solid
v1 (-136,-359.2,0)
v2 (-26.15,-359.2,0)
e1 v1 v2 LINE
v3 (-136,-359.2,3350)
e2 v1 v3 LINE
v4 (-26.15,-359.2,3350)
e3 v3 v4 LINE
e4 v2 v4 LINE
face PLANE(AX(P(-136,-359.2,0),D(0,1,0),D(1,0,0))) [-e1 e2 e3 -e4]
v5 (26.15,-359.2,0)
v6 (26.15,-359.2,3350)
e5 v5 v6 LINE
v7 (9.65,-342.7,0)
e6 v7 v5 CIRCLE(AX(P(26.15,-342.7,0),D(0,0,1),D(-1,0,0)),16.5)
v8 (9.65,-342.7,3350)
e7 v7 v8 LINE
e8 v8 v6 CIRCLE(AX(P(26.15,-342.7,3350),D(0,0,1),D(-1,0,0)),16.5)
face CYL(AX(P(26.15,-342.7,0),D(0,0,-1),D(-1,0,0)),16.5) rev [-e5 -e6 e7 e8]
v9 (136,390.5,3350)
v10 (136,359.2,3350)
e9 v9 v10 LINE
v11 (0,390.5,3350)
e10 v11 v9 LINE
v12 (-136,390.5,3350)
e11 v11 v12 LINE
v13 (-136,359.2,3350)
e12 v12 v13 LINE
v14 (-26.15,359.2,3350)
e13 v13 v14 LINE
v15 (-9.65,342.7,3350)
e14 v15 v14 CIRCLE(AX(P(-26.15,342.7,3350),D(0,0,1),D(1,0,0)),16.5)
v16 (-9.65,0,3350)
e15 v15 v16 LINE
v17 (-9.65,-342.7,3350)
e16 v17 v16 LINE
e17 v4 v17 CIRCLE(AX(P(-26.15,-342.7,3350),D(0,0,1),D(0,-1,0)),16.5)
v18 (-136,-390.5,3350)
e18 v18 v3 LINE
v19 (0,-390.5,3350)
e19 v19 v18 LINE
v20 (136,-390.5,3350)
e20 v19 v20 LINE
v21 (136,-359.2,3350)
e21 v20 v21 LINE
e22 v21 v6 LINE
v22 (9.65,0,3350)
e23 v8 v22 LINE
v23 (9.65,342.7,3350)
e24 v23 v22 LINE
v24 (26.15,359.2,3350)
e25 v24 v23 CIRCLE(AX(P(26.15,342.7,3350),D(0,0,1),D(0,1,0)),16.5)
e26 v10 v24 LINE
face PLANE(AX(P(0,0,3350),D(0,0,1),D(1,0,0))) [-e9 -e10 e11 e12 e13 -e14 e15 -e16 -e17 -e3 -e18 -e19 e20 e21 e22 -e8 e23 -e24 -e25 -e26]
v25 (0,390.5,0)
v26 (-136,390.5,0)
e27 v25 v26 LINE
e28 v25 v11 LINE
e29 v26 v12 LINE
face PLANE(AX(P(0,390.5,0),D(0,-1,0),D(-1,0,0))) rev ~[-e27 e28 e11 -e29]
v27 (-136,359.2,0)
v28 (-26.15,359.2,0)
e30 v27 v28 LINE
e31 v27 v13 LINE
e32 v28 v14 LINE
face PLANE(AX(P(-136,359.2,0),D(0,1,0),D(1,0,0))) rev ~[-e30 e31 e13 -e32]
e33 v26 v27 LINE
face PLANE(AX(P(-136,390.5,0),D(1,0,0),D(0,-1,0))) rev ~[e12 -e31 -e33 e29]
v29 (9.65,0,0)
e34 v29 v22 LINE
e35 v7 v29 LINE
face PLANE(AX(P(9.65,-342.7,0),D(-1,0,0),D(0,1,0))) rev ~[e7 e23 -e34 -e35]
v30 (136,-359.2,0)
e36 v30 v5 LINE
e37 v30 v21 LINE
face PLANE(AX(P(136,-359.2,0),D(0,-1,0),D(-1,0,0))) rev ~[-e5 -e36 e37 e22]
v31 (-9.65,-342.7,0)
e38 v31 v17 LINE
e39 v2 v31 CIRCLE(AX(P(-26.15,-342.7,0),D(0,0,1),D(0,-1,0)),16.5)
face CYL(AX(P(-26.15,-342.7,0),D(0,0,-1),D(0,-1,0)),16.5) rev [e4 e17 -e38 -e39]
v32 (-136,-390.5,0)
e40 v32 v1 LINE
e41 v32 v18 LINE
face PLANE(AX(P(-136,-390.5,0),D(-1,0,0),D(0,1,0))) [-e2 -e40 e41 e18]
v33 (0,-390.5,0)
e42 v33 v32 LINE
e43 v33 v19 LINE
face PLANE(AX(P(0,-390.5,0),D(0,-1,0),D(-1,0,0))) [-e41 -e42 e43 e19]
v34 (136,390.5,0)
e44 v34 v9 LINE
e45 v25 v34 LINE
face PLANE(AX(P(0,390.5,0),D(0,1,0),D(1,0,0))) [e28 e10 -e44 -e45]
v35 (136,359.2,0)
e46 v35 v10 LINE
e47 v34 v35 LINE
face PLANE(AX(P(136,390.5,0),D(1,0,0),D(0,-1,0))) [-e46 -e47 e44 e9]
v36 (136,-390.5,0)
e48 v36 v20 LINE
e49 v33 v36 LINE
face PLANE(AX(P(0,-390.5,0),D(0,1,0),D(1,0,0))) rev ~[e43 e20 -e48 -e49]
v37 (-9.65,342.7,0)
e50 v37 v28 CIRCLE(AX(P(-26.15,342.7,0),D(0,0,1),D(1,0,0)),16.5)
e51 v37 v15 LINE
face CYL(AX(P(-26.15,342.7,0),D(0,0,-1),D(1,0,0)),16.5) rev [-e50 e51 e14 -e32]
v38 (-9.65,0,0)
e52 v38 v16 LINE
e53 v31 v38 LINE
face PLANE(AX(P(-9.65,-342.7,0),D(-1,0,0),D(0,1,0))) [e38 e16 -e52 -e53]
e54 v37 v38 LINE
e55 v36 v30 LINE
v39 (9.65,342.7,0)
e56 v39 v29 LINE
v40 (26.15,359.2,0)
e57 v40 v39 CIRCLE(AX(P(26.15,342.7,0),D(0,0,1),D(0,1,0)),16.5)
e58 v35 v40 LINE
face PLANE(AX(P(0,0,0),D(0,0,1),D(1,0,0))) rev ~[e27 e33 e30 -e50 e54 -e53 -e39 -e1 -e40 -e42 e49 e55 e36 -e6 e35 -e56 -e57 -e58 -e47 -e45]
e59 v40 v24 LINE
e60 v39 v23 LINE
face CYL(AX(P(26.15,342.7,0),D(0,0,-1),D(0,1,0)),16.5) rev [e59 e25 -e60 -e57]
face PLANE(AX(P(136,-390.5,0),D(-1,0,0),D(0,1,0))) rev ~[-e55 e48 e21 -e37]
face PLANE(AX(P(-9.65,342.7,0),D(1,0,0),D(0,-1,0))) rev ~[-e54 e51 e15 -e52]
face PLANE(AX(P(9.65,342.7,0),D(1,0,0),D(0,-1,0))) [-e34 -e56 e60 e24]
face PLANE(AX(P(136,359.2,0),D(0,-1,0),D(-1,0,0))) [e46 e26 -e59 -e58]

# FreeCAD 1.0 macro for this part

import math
import FreeCAD as App
import Part
import Sketcher

doc = App.newDocument("Part")
body = doc.addObject("PartDesign::Body", "Body")

# Sketch on XY plane
sketch1 = body.newObject("Sketcher::SketchObject", "Sketch")
sketch1.AttachmentSupport = (doc.getObject("XY_Plane"), [""])
sketch1.MapMode = "FlatFace"
sketch1.addGeometry([
    Part.LineSegment(App.Vector(-136, -359, 0), App.Vector(-136, -390, 0)),  # 0
    Part.LineSegment(App.Vector(-136, -390, 0), App.Vector(136, -390, 0)),  # 1
    Part.LineSegment(App.Vector(136, -390, 0), App.Vector(136, -359, 0)),  # 2
    Part.LineSegment(App.Vector(136, -359, 0), App.Vector(26, -359, 0)),  # 3
    Part.ArcOfCircle(Part.Circle(App.Vector(26, -343, 0), App.Vector(0, 0, 1), 16), math.radians(180), math.radians(270)),  # 4
    Part.LineSegment(App.Vector(10, -343, 0), App.Vector(10, 343, 0)),  # 5
    Part.ArcOfCircle(Part.Circle(App.Vector(26, 343, 0), App.Vector(0, 0, 1), 16), math.radians(90), math.radians(180)),  # 6
    Part.LineSegment(App.Vector(26, 359, 0), App.Vector(136, 359, 0)),  # 7
    Part.LineSegment(App.Vector(136, 359, 0), App.Vector(136, 390, 0)),  # 8
    Part.LineSegment(App.Vector(136, 390, 0), App.Vector(-136, 390, 0)),  # 9
    Part.LineSegment(App.Vector(-136, 390, 0), App.Vector(-136, 359, 0)),  # 10
    Part.LineSegment(App.Vector(-136, 359, 0), App.Vector(-26, 359, 0)),  # 11
    Part.ArcOfCircle(Part.Circle(App.Vector(-26, 343, 0), App.Vector(0, 0, 1), 16), math.radians(0), math.radians(90)),  # 12
    Part.LineSegment(App.Vector(-10, 343, 0), App.Vector(-10, -343, 0)),  # 13
    Part.ArcOfCircle(Part.Circle(App.Vector(-26, -343, 0), App.Vector(0, 0, 1), 16), math.radians(-90), math.radians(0)),  # 14
    Part.LineSegment(App.Vector(-26, -359, 0), App.Vector(-136, -359, 0)),  # 15
], False)
sketch1.addConstraint([
    Sketcher.Constraint("Coincident", 0, 2, 1, 1),
    Sketcher.Constraint("Coincident", 1, 2, 2, 1),
    Sketcher.Constraint("Coincident", 2, 2, 3, 1),
    Sketcher.Constraint("Tangent", 3, 2, 4, 2),
    Sketcher.Constraint("Tangent", 4, 1, 5, 1),
    Sketcher.Constraint("Tangent", 5, 2, 6, 2),
    Sketcher.Constraint("Tangent", 6, 1, 7, 1),
    Sketcher.Constraint("Coincident", 7, 2, 8, 1),
    Sketcher.Constraint("Coincident", 8, 2, 9, 1),
    Sketcher.Constraint("Coincident", 9, 2, 10, 1),
    Sketcher.Constraint("Coincident", 10, 2, 11, 1),
    Sketcher.Constraint("Tangent", 11, 2, 12, 2),
    Sketcher.Constraint("Tangent", 12, 1, 13, 1),
    Sketcher.Constraint("Tangent", 13, 2, 14, 2),
    Sketcher.Constraint("Tangent", 14, 1, 15, 1),
    Sketcher.Constraint("Coincident", 15, 2, 0, 1),
    Sketcher.Constraint("Vertical", 0),
    Sketcher.Constraint("Horizontal", 1),
    Sketcher.Constraint("Vertical", 2),
    Sketcher.Constraint("Horizontal", 3),
    Sketcher.Constraint("Vertical", 5),
    Sketcher.Constraint("Horizontal", 7),
    Sketcher.Constraint("Vertical", 8),
    Sketcher.Constraint("Horizontal", 9),
    Sketcher.Constraint("Vertical", 10),
    Sketcher.Constraint("Horizontal", 11),
    Sketcher.Constraint("Vertical", 13),
    Sketcher.Constraint("Horizontal", 15),
    Sketcher.Constraint("Equal", 4, 6),
    Sketcher.Constraint("Equal", 6, 12),
    Sketcher.Constraint("Equal", 12, 14),
    Sketcher.Constraint("Symmetric", 4, 3, 12, 3, -1, 1),
    Sketcher.Constraint("Symmetric", 0, 2, 8, 2, -1, 1),
    Sketcher.Constraint("Symmetric", 7, 2, 10, 2, -2),
    Sketcher.Constraint("Symmetric", 2, 2, 15, 2, -2),
    Sketcher.Constraint("Radius", 4, 16.5),
    Sketcher.Constraint("DistanceY", 0, 2, 0, 1, 31.3),
    Sketcher.Constraint("DistanceX", 0, 2, -1, 1, 136.0),
    Sketcher.Constraint("DistanceY", 0, 2, -1, 1, 390.5),
    Sketcher.Constraint("DistanceX", -1, 1, 4, 1, 9.65),
])
pad1 = body.newObject("PartDesign::Pad", "Pad")
pad1.Profile = sketch1
pad1.Length = 3350

doc.recompute()
